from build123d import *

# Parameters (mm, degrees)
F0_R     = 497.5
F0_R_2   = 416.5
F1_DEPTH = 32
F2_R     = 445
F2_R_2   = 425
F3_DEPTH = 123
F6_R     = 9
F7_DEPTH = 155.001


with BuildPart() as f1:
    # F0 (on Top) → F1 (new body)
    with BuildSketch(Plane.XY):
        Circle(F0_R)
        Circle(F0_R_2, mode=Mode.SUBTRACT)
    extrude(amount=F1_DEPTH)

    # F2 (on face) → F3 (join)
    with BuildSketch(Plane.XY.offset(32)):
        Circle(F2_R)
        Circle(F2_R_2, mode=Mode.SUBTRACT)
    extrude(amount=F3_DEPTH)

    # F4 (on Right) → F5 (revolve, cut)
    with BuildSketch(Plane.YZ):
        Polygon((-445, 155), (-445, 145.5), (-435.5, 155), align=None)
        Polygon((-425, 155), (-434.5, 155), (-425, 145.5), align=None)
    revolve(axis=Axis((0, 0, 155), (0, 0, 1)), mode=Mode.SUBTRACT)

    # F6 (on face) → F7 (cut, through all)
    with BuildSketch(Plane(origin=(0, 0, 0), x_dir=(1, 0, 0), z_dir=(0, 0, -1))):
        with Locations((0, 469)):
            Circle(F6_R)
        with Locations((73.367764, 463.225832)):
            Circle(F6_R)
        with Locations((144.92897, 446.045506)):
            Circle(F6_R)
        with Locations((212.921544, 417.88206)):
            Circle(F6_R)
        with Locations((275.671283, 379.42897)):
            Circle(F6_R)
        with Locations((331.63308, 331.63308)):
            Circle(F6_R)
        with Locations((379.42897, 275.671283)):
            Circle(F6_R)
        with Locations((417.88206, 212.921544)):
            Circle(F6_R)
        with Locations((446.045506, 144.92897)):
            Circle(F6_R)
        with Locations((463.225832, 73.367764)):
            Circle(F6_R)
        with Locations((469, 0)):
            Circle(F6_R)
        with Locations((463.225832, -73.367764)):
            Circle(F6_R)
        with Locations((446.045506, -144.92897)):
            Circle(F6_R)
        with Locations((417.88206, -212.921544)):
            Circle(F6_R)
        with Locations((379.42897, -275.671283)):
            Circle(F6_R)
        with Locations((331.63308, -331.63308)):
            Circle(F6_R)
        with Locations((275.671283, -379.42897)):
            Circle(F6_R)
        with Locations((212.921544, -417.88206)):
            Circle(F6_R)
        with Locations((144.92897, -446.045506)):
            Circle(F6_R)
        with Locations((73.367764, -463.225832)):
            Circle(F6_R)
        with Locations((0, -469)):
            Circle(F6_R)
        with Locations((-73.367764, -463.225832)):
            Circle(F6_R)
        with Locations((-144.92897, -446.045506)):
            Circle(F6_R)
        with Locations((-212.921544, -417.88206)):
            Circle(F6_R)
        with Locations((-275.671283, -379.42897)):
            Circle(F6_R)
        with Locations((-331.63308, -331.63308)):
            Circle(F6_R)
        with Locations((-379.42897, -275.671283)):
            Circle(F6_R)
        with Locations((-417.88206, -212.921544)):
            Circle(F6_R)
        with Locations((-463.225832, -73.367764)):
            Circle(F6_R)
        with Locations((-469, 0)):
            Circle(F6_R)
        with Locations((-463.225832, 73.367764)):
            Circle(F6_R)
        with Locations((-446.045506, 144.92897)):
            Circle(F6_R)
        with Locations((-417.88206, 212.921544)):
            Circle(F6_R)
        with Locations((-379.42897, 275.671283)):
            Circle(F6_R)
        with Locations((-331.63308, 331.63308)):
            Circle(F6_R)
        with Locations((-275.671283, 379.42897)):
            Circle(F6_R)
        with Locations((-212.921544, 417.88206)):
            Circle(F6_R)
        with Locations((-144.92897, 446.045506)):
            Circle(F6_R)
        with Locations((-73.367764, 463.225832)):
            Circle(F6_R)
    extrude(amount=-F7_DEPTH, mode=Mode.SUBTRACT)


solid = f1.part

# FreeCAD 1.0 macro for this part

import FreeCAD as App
import Part
import Sketcher

V = App.Vector
Q = App.Units.Quantity


def add_polygon(sketch, points):
    """Adds a closed chain of lines whose ends are joined by coincident constraints."""
    first, n = sketch.GeometryCount, len(points)
    for a, b in zip(points, points[1:] + points[:1]):
        sketch.addGeometry(Part.LineSegment(App.Vector(*a, 0), App.Vector(*b, 0)), False)
    for i in range(n):
        sketch.addConstraint(Sketcher.Constraint("Coincident", first + i, 2, first + (i + 1) % n, 1))

doc = App.newDocument("Part")
params = doc.addObject("Spreadsheet::Sheet", "Params")
for row, (alias, value) in enumerate([
    ("sketch1_diameter", "995 mm"),
    ("sketch1_diameter2", "833 mm"),
    ("pad1_length", "32 mm"),
    ("sketch2_diameter", "890 mm"),
    ("sketch2_diameter2", "850 mm"),
    ("pad2_length", "123 mm"),
    ("sketch3_width", "9.5 mm"),
    ("groove_angle", "360 deg"),
    ("sketch4_diameter", "18 mm"),
], start=1):
    params.set(f"A{row}", alias)
    params.set(f"B{row}", "=" + value)
    params.setAlias(f"B{row}", alias)

body = doc.addObject("PartDesign::Body", "Body")

# Sketch on XY plane
sketch1 = body.newObject("Sketcher::SketchObject", "Sketch")
sketch1.AttachmentSupport = (doc.getObject("XY_Plane"), [""])
sketch1.MapMode = "FlatFace"
sketch1.addGeometry([
    Part.Circle(V(0, 0, 0), V(0, 0, 1), 497.5),
    Part.Circle(V(0, 0, 0), V(0, 0, 1), 416.5),
], False)
sketch1.addConstraint([
    Sketcher.Constraint("Coincident", 0, 3, -1, 1),
    Sketcher.Constraint("Coincident", 1, 3, -1, 1),
    Sketcher.Constraint("Diameter", 0, Q("995 mm")),
    Sketcher.Constraint("Diameter", 1, Q("833 mm")),
])
sketch1.setExpression("Constraints[2]", "Params.sketch1_diameter")
sketch1.setExpression("Constraints[3]", "Params.sketch1_diameter2")
pad1 = body.newObject("PartDesign::Pad", "Pad")
pad1.Profile = sketch1
pad1.setExpression("Length", "Params.pad1_length")

# Sketch on XY plane
sketch2 = body.newObject("Sketcher::SketchObject", "Sketch001")
sketch2.AttachmentSupport = (doc.getObject("XY_Plane"), [""])
sketch2.MapMode = "FlatFace"
sketch2.AttachmentOffset = App.Placement(V(0, 0, 32), App.Rotation())
sketch2.addGeometry([
    Part.Circle(V(0, 0, 0), V(0, 0, 1), 445),
    Part.Circle(V(0, 0, 0), V(0, 0, 1), 425),
], False)
sketch2.addConstraint([
    Sketcher.Constraint("Coincident", 0, 3, -1, 1),
    Sketcher.Constraint("Coincident", 1, 3, -1, 1),
    Sketcher.Constraint("Diameter", 0, Q("890 mm")),
    Sketcher.Constraint("Diameter", 1, Q("850 mm")),
])
sketch2.setExpression("Constraints[2]", "Params.sketch2_diameter")
sketch2.setExpression("Constraints[3]", "Params.sketch2_diameter2")
pad2 = body.newObject("PartDesign::Pad", "Pad001")
pad2.Profile = sketch2
pad2.setExpression("Length", "Params.pad2_length")

# Sketch on YZ plane
sketch3 = body.newObject("Sketcher::SketchObject", "Sketch002")
sketch3.AttachmentSupport = (doc.getObject("YZ_Plane"), [""])
sketch3.MapMode = "FlatFace"
add_polygon(sketch3, [(-445, 155), (-445, 145.5), (-435.5, 155)])  # lines 0-2
add_polygon(sketch3, [(-425, 155), (-434.5, 155), (-425, 145.5)])  # lines 3-5
sketch3.addConstraint([
    Sketcher.Constraint("Vertical", 0),
    Sketcher.Constraint("Horizontal", 2),
    Sketcher.Constraint("Horizontal", 3),
    Sketcher.Constraint("Vertical", 5),
    Sketcher.Constraint("Perpendicular", 1, 4),
    Sketcher.Constraint("Horizontal", 2, 2, 3, 2),
    Sketcher.Constraint("Horizontal", 0, 2, 4, 2),
    Sketcher.Constraint("Equal", 2, 3),
    Sketcher.Constraint("DistanceX", 2, 2, 2, 1, Q("9.5 mm")),
    Sketcher.Constraint("DistanceX", 0, 2, -1, 1, Q("445 mm")),
    Sketcher.Constraint("DistanceY", -1, 1, 1, 2, Q("155 mm")),
    Sketcher.Constraint("DistanceX", 4, 2, -1, 1, Q("425 mm")),
])
sketch3.setExpression("Constraints[14]", "Params.sketch3_width")
groove = body.newObject("PartDesign::Groove", "Groove")
groove.Profile = sketch3
groove.ReferenceAxis = (sketch3, ["V_Axis"])
groove.setExpression("Angle", "Params.groove_angle")

# Sketch on XY plane
sketch4 = body.newObject("Sketcher::SketchObject", "Sketch003")
sketch4.AttachmentSupport = (doc.getObject("XY_Plane"), [""])
sketch4.MapMode = "FlatFace"
sketch4.addGeometry([
    Part.Circle(V(0, -469, 0), V(0, 0, 1), 9),  # 0
    Part.Circle(V(73.367764, -463.225832, 0), V(0, 0, 1), 9),  # 1
    Part.Circle(V(144.92897, -446.045506, 0), V(0, 0, 1), 9),  # 2
    Part.Circle(V(212.921544, -417.88206, 0), V(0, 0, 1), 9),  # 3
    Part.Circle(V(275.671283, -379.42897, 0), V(0, 0, 1), 9),  # 4
    Part.Circle(V(331.63308, -331.63308, 0), V(0, 0, 1), 9),  # 5
    Part.Circle(V(379.42897, -275.671283, 0), V(0, 0, 1), 9),  # 6
    Part.Circle(V(417.88206, -212.921544, 0), V(0, 0, 1), 9),  # 7
    Part.Circle(V(446.045506, -144.92897, 0), V(0, 0, 1), 9),  # 8
    Part.Circle(V(463.225832, -73.367764, 0), V(0, 0, 1), 9),  # 9
    Part.Circle(V(469, 0, 0), V(0, 0, 1), 9),  # 10
    Part.Circle(V(463.225832, 73.367764, 0), V(0, 0, 1), 9),  # 11
    Part.Circle(V(446.045506, 144.92897, 0), V(0, 0, 1), 9),  # 12
    Part.Circle(V(417.88206, 212.921544, 0), V(0, 0, 1), 9),  # 13
    Part.Circle(V(379.42897, 275.671283, 0), V(0, 0, 1), 9),  # 14
    Part.Circle(V(331.63308, 331.63308, 0), V(0, 0, 1), 9),  # 15
    Part.Circle(V(275.671283, 379.42897, 0), V(0, 0, 1), 9),  # 16
    Part.Circle(V(212.921544, 417.88206, 0), V(0, 0, 1), 9),  # 17
    Part.Circle(V(144.92897, 446.045506, 0), V(0, 0, 1), 9),  # 18
    Part.Circle(V(73.367764, 463.225832, 0), V(0, 0, 1), 9),  # 19
    Part.Circle(V(0, 469, 0), V(0, 0, 1), 9),  # 20
    Part.Circle(V(-73.367764, 463.225832, 0), V(0, 0, 1), 9),  # 21
    Part.Circle(V(-144.92897, 446.045506, 0), V(0, 0, 1), 9),  # 22
    Part.Circle(V(-212.921544, 417.88206, 0), V(0, 0, 1), 9),  # 23
    Part.Circle(V(-275.671283, 379.42897, 0), V(0, 0, 1), 9),  # 24
    Part.Circle(V(-331.63308, 331.63308, 0), V(0, 0, 1), 9),  # 25
    Part.Circle(V(-379.42897, 275.671283, 0), V(0, 0, 1), 9),  # 26
    Part.Circle(V(-417.88206, 212.921544, 0), V(0, 0, 1), 9),  # 27
    Part.Circle(V(-463.225832, 73.367764, 0), V(0, 0, 1), 9),  # 28
    Part.Circle(V(-469, 0, 0), V(0, 0, 1), 9),  # 29
    Part.Circle(V(-463.225832, -73.367764, 0), V(0, 0, 1), 9),  # 30
    Part.Circle(V(-446.045506, -144.92897, 0), V(0, 0, 1), 9),  # 31
    Part.Circle(V(-417.88206, -212.921544, 0), V(0, 0, 1), 9),  # 32
    Part.Circle(V(-379.42897, -275.671283, 0), V(0, 0, 1), 9),  # 33
    Part.Circle(V(-331.63308, -331.63308, 0), V(0, 0, 1), 9),  # 34
    Part.Circle(V(-275.671283, -379.42897, 0), V(0, 0, 1), 9),  # 35
    Part.Circle(V(-212.921544, -417.88206, 0), V(0, 0, 1), 9),  # 36
    Part.Circle(V(-144.92897, -446.045506, 0), V(0, 0, 1), 9),  # 37
    Part.Circle(V(-73.367764, -463.225832, 0), V(0, 0, 1), 9),  # 38
], False)
sketch4.addConstraint([
    Sketcher.Constraint("Equal", 0, 1),
    Sketcher.Constraint("Equal", 1, 2),
    Sketcher.Constraint("Equal", 2, 3),
    Sketcher.Constraint("Equal", 3, 4),
    Sketcher.Constraint("Equal", 4, 5),
    Sketcher.Constraint("Equal", 5, 6),
    Sketcher.Constraint("Equal", 6, 7),
    Sketcher.Constraint("Equal", 7, 8),
    Sketcher.Constraint("Equal", 8, 9),
    Sketcher.Constraint("Equal", 9, 10),
    Sketcher.Constraint("Equal", 10, 11),
    Sketcher.Constraint("Equal", 11, 12),
    Sketcher.Constraint("Equal", 12, 13),
    Sketcher.Constraint("Equal", 13, 14),
    Sketcher.Constraint("Equal", 14, 15),
    Sketcher.Constraint("Equal", 15, 16),
    Sketcher.Constraint("Equal", 16, 17),
    Sketcher.Constraint("Equal", 17, 18),
    Sketcher.Constraint("Equal", 18, 19),
    Sketcher.Constraint("Equal", 19, 20),
    Sketcher.Constraint("Equal", 20, 21),
    Sketcher.Constraint("Equal", 21, 22),
    Sketcher.Constraint("Equal", 22, 23),
    Sketcher.Constraint("Equal", 23, 24),
    Sketcher.Constraint("Equal", 24, 25),
    Sketcher.Constraint("Equal", 25, 26),
    Sketcher.Constraint("Equal", 26, 27),
    Sketcher.Constraint("Equal", 27, 28),
    Sketcher.Constraint("Equal", 28, 29),
    Sketcher.Constraint("Equal", 29, 30),
    Sketcher.Constraint("Equal", 30, 31),
    Sketcher.Constraint("Equal", 31, 32),
    Sketcher.Constraint("Equal", 32, 33),
    Sketcher.Constraint("Equal", 33, 34),
    Sketcher.Constraint("Equal", 34, 35),
    Sketcher.Constraint("Equal", 35, 36),
    Sketcher.Constraint("Equal", 36, 37),
    Sketcher.Constraint("Equal", 37, 38),
    Sketcher.Constraint("Symmetric", 0, 3, 20, 3, -1, 1),
    Sketcher.Constraint("Symmetric", 1, 3, 21, 3, -1, 1),
    Sketcher.Constraint("Symmetric", 2, 3, 22, 3, -1, 1),
    Sketcher.Constraint("Symmetric", 3, 3, 23, 3, -1, 1),
    Sketcher.Constraint("Symmetric", 4, 3, 24, 3, -1, 1),
    Sketcher.Constraint("Symmetric", 5, 3, 25, 3, -1, 1),
    Sketcher.Constraint("Symmetric", 6, 3, 26, 3, -1, 1),
    Sketcher.Constraint("Symmetric", 7, 3, 27, 3, -1, 1),
    Sketcher.Constraint("Symmetric", 9, 3, 28, 3, -1, 1),
    Sketcher.Constraint("Symmetric", 10, 3, 29, 3, -1, 1),
    Sketcher.Constraint("Symmetric", 11, 3, 30, 3, -1, 1),
    Sketcher.Constraint("Symmetric", 12, 3, 31, 3, -1, 1),
    Sketcher.Constraint("Symmetric", 13, 3, 32, 3, -1, 1),
    Sketcher.Constraint("Symmetric", 14, 3, 33, 3, -1, 1),
    Sketcher.Constraint("Symmetric", 15, 3, 34, 3, -1, 1),
    Sketcher.Constraint("Symmetric", 16, 3, 35, 3, -1, 1),
    Sketcher.Constraint("Symmetric", 17, 3, 36, 3, -1, 1),
    Sketcher.Constraint("Symmetric", 18, 3, 37, 3, -1, 1),
    Sketcher.Constraint("Symmetric", 19, 3, 38, 3, -1, 1),
    Sketcher.Constraint("Symmetric", 19, 3, 21, 3, -2),
    Sketcher.Constraint("Symmetric", 18, 3, 22, 3, -2),
    Sketcher.Constraint("Symmetric", 17, 3, 23, 3, -2),
    Sketcher.Constraint("Symmetric", 16, 3, 24, 3, -2),
    Sketcher.Constraint("Symmetric", 15, 3, 25, 3, -2),
    Sketcher.Constraint("Symmetric", 14, 3, 26, 3, -2),
    Sketcher.Constraint("Symmetric", 13, 3, 27, 3, -2),
    Sketcher.Constraint("Symmetric", 11, 3, 28, 3, -2),
    Sketcher.Constraint("Symmetric", 8, 3, 31, 3, -2),
    Sketcher.Constraint("PointOnObject", 0, 3, -2),
    Sketcher.Constraint("PointOnObject", 10, 3, -1),
    Sketcher.Constraint("Diameter", 0, Q("18 mm")),
    Sketcher.Constraint("DistanceY", 0, 3, -1, 1, Q("469 mm")),
    Sketcher.Constraint("DistanceX", -1, 1, 10, 3, Q("469 mm")),
    Sketcher.Constraint("DistanceX", 2, 3, 6, 3, Q("234.5 mm")),
    Sketcher.Constraint("DistanceY", 4, 3, 8, 3, Q("234.5 mm")),
    Sketcher.Constraint("DistanceX", -1, 1, 2, 3, Q("144.92897 mm")),
    Sketcher.Constraint("DistanceY", 3, 3, -1, 1, Q("417.88206 mm")),
    Sketcher.Constraint("DistanceY", 4, 3, -1, 1, Q("379.42897 mm")),
    Sketcher.Constraint("DistanceX", -1, 1, 5, 3, Q("331.63308 mm")),
    Sketcher.Constraint("DistanceY", 5, 3, -1, 1, Q("331.63308 mm")),
    Sketcher.Constraint("DistanceX", -1, 1, 7, 3, Q("417.88206 mm")),
    Sketcher.Constraint("DistanceX", 1, 3, 3, 3, Q("139.55378 mm")),
    Sketcher.Constraint("DistanceX", 3, 3, 4, 3, Q("62.749739 mm")),
    Sketcher.Constraint("DistanceY", 1, 3, 6, 3, Q("187.554549 mm")),
    Sketcher.Constraint("DistanceY", 6, 3, 7, 3, Q("62.749739 mm")),
    Sketcher.Constraint("DistanceY", 2, 3, 7, 3, Q("233.123962 mm")),
    Sketcher.Constraint("DistanceX", 3, 3, 8, 3, Q("233.123962 mm")),
    Sketcher.Constraint("DistanceY", 7, 3, 9, 3, Q("139.55378 mm")),
    Sketcher.Constraint("DistanceX", 4, 3, 9, 3, Q("187.554549 mm")),
    Sketcher.Constraint("DistanceY", 7, 3, 11, 3, Q("286.289308 mm")),
    Sketcher.Constraint("DistanceX", 21, 3, 17, 3, Q("286.289308 mm")),
])
sketch4.setExpression("Constraints[68]", "Params.sketch4_diameter")
pocket1 = body.newObject("PartDesign::Pocket", "Pocket")
pocket1.Profile = sketch4
pocket1.Type = "ThroughAll"
pocket1.Reversed = True

doc.recompute()
